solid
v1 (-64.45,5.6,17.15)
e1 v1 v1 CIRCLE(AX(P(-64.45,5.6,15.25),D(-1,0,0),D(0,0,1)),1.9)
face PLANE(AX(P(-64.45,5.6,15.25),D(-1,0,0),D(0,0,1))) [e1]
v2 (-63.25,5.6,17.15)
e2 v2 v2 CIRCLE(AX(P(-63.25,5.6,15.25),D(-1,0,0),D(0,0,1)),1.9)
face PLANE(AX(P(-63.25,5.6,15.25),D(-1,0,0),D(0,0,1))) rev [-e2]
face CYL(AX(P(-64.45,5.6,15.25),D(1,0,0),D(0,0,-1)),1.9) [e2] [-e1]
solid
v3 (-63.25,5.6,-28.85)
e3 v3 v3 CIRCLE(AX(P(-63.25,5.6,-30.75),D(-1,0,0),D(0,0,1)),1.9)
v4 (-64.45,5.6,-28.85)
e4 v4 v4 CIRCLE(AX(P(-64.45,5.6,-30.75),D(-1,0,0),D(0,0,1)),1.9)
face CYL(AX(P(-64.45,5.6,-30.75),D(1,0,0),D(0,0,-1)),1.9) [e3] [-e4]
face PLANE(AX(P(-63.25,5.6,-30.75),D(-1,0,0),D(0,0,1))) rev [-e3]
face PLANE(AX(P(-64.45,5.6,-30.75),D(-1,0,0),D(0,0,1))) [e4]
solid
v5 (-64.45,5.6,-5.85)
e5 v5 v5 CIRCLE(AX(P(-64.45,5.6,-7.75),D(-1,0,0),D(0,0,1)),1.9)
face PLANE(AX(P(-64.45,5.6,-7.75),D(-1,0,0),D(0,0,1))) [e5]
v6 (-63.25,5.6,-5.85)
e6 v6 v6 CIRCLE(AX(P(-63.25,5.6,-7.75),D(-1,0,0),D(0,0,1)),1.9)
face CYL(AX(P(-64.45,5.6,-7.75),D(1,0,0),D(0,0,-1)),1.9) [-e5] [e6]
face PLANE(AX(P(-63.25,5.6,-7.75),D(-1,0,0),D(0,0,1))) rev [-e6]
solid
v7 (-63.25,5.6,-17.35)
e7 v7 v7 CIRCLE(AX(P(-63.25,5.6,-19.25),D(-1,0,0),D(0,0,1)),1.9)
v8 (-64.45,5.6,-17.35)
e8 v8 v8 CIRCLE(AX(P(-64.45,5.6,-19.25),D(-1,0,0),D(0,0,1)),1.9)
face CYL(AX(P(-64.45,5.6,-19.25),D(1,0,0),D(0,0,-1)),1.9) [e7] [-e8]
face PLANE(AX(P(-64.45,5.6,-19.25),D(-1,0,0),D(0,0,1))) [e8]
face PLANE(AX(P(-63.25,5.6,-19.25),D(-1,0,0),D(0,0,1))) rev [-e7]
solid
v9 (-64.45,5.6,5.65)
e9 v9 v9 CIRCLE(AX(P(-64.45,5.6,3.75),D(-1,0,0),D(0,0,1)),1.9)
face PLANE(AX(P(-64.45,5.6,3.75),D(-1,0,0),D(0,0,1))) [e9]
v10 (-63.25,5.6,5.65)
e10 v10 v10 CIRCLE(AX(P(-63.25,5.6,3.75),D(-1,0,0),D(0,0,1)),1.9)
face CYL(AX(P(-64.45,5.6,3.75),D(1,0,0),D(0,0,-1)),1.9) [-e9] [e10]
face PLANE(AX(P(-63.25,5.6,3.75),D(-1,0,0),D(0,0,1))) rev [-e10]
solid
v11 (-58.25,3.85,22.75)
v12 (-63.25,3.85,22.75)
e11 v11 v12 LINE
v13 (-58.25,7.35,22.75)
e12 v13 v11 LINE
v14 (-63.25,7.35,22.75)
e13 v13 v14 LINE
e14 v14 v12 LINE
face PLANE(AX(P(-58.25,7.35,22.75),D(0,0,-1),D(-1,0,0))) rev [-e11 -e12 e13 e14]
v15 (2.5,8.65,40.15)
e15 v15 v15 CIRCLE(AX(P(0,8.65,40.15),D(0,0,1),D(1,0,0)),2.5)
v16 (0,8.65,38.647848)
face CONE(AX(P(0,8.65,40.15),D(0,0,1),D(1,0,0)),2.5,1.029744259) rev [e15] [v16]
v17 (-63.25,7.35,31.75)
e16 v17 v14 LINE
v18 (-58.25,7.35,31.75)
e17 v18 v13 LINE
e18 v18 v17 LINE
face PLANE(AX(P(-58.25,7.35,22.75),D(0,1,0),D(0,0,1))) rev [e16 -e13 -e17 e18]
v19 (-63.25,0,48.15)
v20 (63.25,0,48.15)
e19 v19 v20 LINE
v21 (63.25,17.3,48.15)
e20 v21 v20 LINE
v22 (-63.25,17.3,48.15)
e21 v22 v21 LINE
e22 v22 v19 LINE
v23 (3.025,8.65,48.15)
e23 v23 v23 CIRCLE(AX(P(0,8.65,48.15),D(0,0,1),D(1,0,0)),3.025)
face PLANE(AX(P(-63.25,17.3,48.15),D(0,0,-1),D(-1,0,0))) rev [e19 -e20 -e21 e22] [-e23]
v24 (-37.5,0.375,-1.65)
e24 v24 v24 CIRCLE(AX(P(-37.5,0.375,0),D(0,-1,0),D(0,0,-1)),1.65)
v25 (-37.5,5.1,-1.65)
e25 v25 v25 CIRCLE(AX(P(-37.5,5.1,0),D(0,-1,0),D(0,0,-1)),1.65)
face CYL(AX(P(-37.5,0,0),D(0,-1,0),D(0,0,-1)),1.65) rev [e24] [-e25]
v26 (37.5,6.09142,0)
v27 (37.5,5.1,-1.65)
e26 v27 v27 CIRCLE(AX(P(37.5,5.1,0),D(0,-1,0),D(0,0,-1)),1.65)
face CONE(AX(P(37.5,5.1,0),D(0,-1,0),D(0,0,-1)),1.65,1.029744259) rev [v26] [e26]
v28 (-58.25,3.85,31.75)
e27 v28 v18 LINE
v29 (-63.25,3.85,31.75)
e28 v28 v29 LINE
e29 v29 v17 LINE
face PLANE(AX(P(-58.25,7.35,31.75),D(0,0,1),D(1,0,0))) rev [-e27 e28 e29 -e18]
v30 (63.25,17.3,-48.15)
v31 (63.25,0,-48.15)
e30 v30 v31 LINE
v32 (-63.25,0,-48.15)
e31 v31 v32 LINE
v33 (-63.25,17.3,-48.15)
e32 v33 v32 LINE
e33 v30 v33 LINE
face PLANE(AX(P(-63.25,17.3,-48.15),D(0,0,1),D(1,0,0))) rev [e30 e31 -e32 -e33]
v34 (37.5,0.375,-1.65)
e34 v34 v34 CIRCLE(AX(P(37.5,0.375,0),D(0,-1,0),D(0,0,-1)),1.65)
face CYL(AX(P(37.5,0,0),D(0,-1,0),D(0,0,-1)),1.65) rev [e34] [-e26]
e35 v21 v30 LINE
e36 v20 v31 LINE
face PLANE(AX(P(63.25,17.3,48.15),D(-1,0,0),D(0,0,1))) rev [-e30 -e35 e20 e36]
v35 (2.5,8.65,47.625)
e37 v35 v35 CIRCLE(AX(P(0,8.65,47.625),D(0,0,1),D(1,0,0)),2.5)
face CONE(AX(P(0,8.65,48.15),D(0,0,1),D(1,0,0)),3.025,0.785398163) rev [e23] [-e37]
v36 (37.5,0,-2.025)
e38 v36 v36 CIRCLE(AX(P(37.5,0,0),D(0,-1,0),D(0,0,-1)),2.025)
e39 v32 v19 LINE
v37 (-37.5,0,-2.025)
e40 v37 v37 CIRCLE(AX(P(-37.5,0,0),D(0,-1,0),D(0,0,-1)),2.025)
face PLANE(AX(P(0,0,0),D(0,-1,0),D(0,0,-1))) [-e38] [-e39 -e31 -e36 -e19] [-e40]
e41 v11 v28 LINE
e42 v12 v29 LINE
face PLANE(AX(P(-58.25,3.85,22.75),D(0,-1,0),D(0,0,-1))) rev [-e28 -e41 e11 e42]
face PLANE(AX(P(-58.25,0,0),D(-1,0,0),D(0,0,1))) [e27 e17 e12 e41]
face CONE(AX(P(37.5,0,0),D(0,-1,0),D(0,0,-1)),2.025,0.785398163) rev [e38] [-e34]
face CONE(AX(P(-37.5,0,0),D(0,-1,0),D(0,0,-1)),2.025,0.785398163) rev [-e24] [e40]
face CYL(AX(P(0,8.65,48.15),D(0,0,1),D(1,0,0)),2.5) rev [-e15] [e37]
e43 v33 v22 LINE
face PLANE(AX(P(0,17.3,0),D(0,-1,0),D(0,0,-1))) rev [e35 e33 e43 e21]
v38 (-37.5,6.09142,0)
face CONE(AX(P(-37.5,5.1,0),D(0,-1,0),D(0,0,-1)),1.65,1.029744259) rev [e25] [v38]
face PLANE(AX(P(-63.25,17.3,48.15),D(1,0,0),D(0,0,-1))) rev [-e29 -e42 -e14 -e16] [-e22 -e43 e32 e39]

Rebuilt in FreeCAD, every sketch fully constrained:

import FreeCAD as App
import Part
import Sketcher

V = App.Vector
Q = App.Units.Quantity


def add_polygon(sketch, points):
    """Adds a closed chain of lines whose ends are joined by coincident constraints."""
    first, n = sketch.GeometryCount, len(points)
    for a, b in zip(points, points[1:] + points[:1]):
        sketch.addGeometry(Part.LineSegment(App.Vector(*a, 0), App.Vector(*b, 0)), False)
    for i in range(n):
        sketch.addConstraint(Sketcher.Constraint("Coincident", first + i, 2, first + (i + 1) % n, 1))

doc = App.newDocument("Part")
params = doc.addObject("Spreadsheet::Sheet", "Params")
for row, (alias, value) in enumerate([
    ("sketch1_width", "126.5 mm"),
    ("sketch1_height", "96.3 mm"),
    ("pad1_length", "17.3 mm"),
    ("sketch2_diameter", "5 mm"),
    ("hole_diameter", "5 mm"),
    ("hole_depth", "8 mm"),
    ("hole_csink_diameter", "6.05 mm"),
    ("sketch3_height", "9 mm"),
    ("sketch3_width", "3.5 mm"),
    ("pocket1_length", "5 mm"),
    ("groove_angle", "360 deg"),
    ("linearpattern_pitch", "75 mm"),
    ("sketch5_diameter", "3.8 mm"),
    ("pad2_length", "1.2 mm"),
    ("sketch6_diameter", "3.8 mm"),
    ("pad3_length", "1.2 mm"),
    ("sketch7_diameter", "3.8 mm"),
    ("pad4_length", "1.2 mm"),
    ("sketch8_diameter", "3.8 mm"),
    ("pad5_length", "1.2 mm"),
    ("sketch9_diameter", "3.8 mm"),
    ("pad6_length", "1.2 mm"),
], start=1):
    params.set(f"A{row}", alias)
    params.set(f"B{row}", "=" + value)
    params.setAlias(f"B{row}", alias)

body = doc.addObject("PartDesign::Body", "Body")

# Sketch on XZ plane
sketch1 = body.newObject("Sketcher::SketchObject", "Sketch")
sketch1.AttachmentSupport = (doc.getObject("XZ_Plane"), [""])
sketch1.MapMode = "FlatFace"
add_polygon(sketch1, [(-63, -48), (-63, 48), (63, 48), (63, -48)])  # lines 0-3
sketch1.addConstraint([
    Sketcher.Constraint("Vertical", 0),
    Sketcher.Constraint("Horizontal", 1),
    Sketcher.Constraint("Vertical", 2),
    Sketcher.Constraint("Horizontal", 3),
    Sketcher.Constraint("Symmetric", 0, 2, 2, 2, -1, 1),
    Sketcher.Constraint("DistanceX", 1, 1, 1, 2, 126.5),
    Sketcher.Constraint("DistanceY", 0, 1, 0, 2, 96.3),
])
sketch1.setExpression("Constraints[9]", "Params.sketch1_width")
sketch1.setExpression("Constraints[10]", "Params.sketch1_height")
pad1 = body.newObject("PartDesign::Pad", "Pad")
pad1.Profile = sketch1
pad1.setExpression("Length", "Params.pad1_length")
pad1.Reversed = True

# Sketch on XY plane
sketch2 = body.newObject("Sketcher::SketchObject", "Sketch001")
sketch2.AttachmentSupport = (doc.getObject("XY_Plane"), [""])
sketch2.MapMode = "FlatFace"
sketch2.AttachmentOffset = App.Placement(V(0, 0, 48.15), App.Rotation())
sketch2.addGeometry(Part.Circle(V(0, 8.7, 0), V(0, 0, 1), 2.5), False)
sketch2.addConstraint([
    Sketcher.Constraint("PointOnObject", 0, 3, -2),
    Sketcher.Constraint("Diameter", 0, 5.0),
    Sketcher.Constraint("DistanceY", -1, 1, 0, 3, 8.65),
])
sketch2.setExpression("Constraints[1]", "Params.sketch2_diameter")
doc.recompute()
hole = body.newObject("PartDesign::Hole", "Hole")
hole.Profile = sketch2
hole.ThreadType = "None"
hole.setExpression("Diameter", "Params.hole_diameter")
hole.DepthType = "Dimension"
hole.setExpression("Depth", "Params.hole_depth")
hole.DrillPoint = "Angled"
hole.DrillPointAngle = 118
hole.HoleCutType = "Countersink"
hole.setExpression("HoleCutDiameter", "Params.hole_csink_diameter")
hole.HoleCutCountersinkAngle = 90

# Sketch on YZ plane
sketch3 = body.newObject("Sketcher::SketchObject", "Sketch002")
sketch3.AttachmentSupport = (doc.getObject("YZ_Plane"), [""])
sketch3.MapMode = "FlatFace"
sketch3.AttachmentOffset = App.Placement(V(0, 0, -63.25), App.Rotation())
add_polygon(sketch3, [(7.3, 22.8), (3.9, 22.8), (3.9, 31.8), (7.3, 31.8)])  # lines 0-3
sketch3.addConstraint([
    Sketcher.Constraint("Horizontal", 0),
    Sketcher.Constraint("Vertical", 1),
    Sketcher.Constraint("Horizontal", 2),
    Sketcher.Constraint("Vertical", 3),
    Sketcher.Constraint("DistanceY", 1, 1, 1, 2, 9.0),
    Sketcher.Constraint("DistanceX", 0, 2, 0, 1, 3.5),
    Sketcher.Constraint("DistanceX", -1, 1, 0, 2, 3.85),
    Sketcher.Constraint("DistanceY", -1, 1, 0, 2, 22.75),
])
sketch3.setExpression("Constraints[8]", "Params.sketch3_height")
sketch3.setExpression("Constraints[9]", "Params.sketch3_width")
pocket1 = body.newObject("PartDesign::Pocket", "Pocket")
pocket1.Profile = sketch3
pocket1.setExpression("Length", "Params.pocket1_length")
pocket1.Reversed = True

# Sketch on YZ plane
sketch4 = body.newObject("Sketcher::SketchObject", "Sketch003")
sketch4.AttachmentSupport = (doc.getObject("YZ_Plane"), [""])
sketch4.MapMode = "FlatFace"
sketch4.AttachmentOffset = App.Placement(V(0, 0, 37.5), App.Rotation())
add_polygon(sketch4, [(6.1, 0), (0, 0), (0, -2), (0.4, -1.6), (5.1, -1.6)])  # lines 0-4
sketch4.addConstraint([
    Sketcher.Constraint("Horizontal", 0),
    Sketcher.Constraint("Vertical", 1),
    Sketcher.Constraint("Horizontal", 3),
    Sketcher.Constraint("Coincident", 0, 2, -1, 1),
    Sketcher.Constraint("Angle", 2, Q("45 deg")),
    Sketcher.Constraint("Angle", 4, Q("59 deg")),
    Sketcher.Constraint("DistanceX", -1, 1, 3, 2, 5.1),
    Sketcher.Constraint("DistanceX", 3, 1, 3, 2, 4.725),
    Sketcher.Constraint("DistanceY", 1, 2, 1, 1, 2.025),
])
groove = body.newObject("PartDesign::Groove", "Groove")
groove.Profile = sketch4
groove.ReferenceAxis = (sketch4, ["H_Axis"])
groove.setExpression("Angle", "Params.groove_angle")
doc.recompute()

linearpattern = body.newObject("PartDesign::LinearPattern", "LinearPattern")
linearpattern.Originals = [groove]
linearpattern.Direction = (doc.getObject("X_Axis"), [""])
linearpattern.Mode = "offset"
linearpattern.setExpression("Offset", "Params.linearpattern_pitch")
linearpattern.Occurrences = 2
linearpattern.Reversed = True
body.Tip = linearpattern
body2 = doc.addObject("PartDesign::Body", "Body001")

# Sketch on YZ plane
sketch5 = body2.newObject("Sketcher::SketchObject", "Sketch004")
sketch5.AttachmentSupport = (doc.getObject("YZ_Plane001"), [""])
sketch5.MapMode = "FlatFace"
sketch5.AttachmentOffset = App.Placement(V(0, 0, -63.25), App.Rotation())
sketch5.addGeometry(Part.Circle(V(5.6, -30.8, 0), V(0, 0, 1), 1.9), False)
sketch5.addConstraint([
    Sketcher.Constraint("Diameter", 0, 3.8),
    Sketcher.Constraint("DistanceX", -1, 1, 0, 3, 5.6),
    Sketcher.Constraint("DistanceY", 0, 3, -1, 1, 30.75),
])
sketch5.setExpression("Constraints[0]", "Params.sketch5_diameter")
pad2 = body2.newObject("PartDesign::Pad", "Pad001")
pad2.Profile = sketch5
pad2.setExpression("Length", "Params.pad2_length")
pad2.Reversed = True
body3 = doc.addObject("PartDesign::Body", "Body002")

# Sketch on YZ plane
sketch6 = body3.newObject("Sketcher::SketchObject", "Sketch005")
sketch6.AttachmentSupport = (doc.getObject("YZ_Plane002"), [""])
sketch6.MapMode = "FlatFace"
sketch6.AttachmentOffset = App.Placement(V(0, 0, -63.25), App.Rotation())
sketch6.addGeometry(Part.Circle(V(5.6, -19.2, 0), V(0, 0, 1), 1.9), False)
sketch6.addConstraint([
    Sketcher.Constraint("Diameter", 0, 3.8),
    Sketcher.Constraint("DistanceX", -1, 1, 0, 3, 5.6),
    Sketcher.Constraint("DistanceY", 0, 3, -1, 1, 19.25),
])
sketch6.setExpression("Constraints[0]", "Params.sketch6_diameter")
pad3 = body3.newObject("PartDesign::Pad", "Pad002")
pad3.Profile = sketch6
pad3.setExpression("Length", "Params.pad3_length")
pad3.Reversed = True
body4 = doc.addObject("PartDesign::Body", "Body003")

# Sketch on YZ plane
sketch7 = body4.newObject("Sketcher::SketchObject", "Sketch006")
sketch7.AttachmentSupport = (doc.getObject("YZ_Plane003"), [""])
sketch7.MapMode = "FlatFace"
sketch7.AttachmentOffset = App.Placement(V(0, 0, -63.25), App.Rotation())
sketch7.addGeometry(Part.Circle(V(5.6, -7.8, 0), V(0, 0, 1), 1.9), False)
sketch7.addConstraint([
    Sketcher.Constraint("Diameter", 0, 3.8),
    Sketcher.Constraint("DistanceX", -1, 1, 0, 3, 5.6),
    Sketcher.Constraint("DistanceY", 0, 3, -1, 1, 7.75),
])
sketch7.setExpression("Constraints[0]", "Params.sketch7_diameter")
pad4 = body4.newObject("PartDesign::Pad", "Pad003")
pad4.Profile = sketch7
pad4.setExpression("Length", "Params.pad4_length")
pad4.Reversed = True
body5 = doc.addObject("PartDesign::Body", "Body004")

# Sketch on YZ plane
sketch8 = body5.newObject("Sketcher::SketchObject", "Sketch007")
sketch8.AttachmentSupport = (doc.getObject("YZ_Plane004"), [""])
sketch8.MapMode = "FlatFace"
sketch8.AttachmentOffset = App.Placement(V(0, 0, -63.25), App.Rotation())
sketch8.addGeometry(Part.Circle(V(5.6, 3.8, 0), V(0, 0, 1), 1.9), False)
sketch8.addConstraint([
    Sketcher.Constraint("Diameter", 0, 3.8),
    Sketcher.Constraint("DistanceX", -1, 1, 0, 3, 5.6),
    Sketcher.Constraint("DistanceY", -1, 1, 0, 3, 3.75),
])
sketch8.setExpression("Constraints[0]", "Params.sketch8_diameter")
pad5 = body5.newObject("PartDesign::Pad", "Pad004")
pad5.Profile = sketch8
pad5.setExpression("Length", "Params.pad5_length")
pad5.Reversed = True
body6 = doc.addObject("PartDesign::Body", "Body005")

# Sketch on YZ plane
sketch9 = body6.newObject("Sketcher::SketchObject", "Sketch008")
sketch9.AttachmentSupport = (doc.getObject("YZ_Plane005"), [""])
sketch9.MapMode = "FlatFace"
sketch9.AttachmentOffset = App.Placement(V(0, 0, -63.25), App.Rotation())
sketch9.addGeometry(Part.Circle(V(5.6, 15.2, 0), V(0, 0, 1), 1.9), False)
sketch9.addConstraint([
    Sketcher.Constraint("Diameter", 0, 3.8),
    Sketcher.Constraint("DistanceX", -1, 1, 0, 3, 5.6),
    Sketcher.Constraint("DistanceY", -1, 1, 0, 3, 15.25),
])
sketch9.setExpression("Constraints[0]", "Params.sketch9_diameter")
pad6 = body6.newObject("PartDesign::Pad", "Pad005")
pad6.Profile = sketch9
pad6.setExpression("Length", "Params.pad6_length")
pad6.Reversed = True

doc.recompute()
